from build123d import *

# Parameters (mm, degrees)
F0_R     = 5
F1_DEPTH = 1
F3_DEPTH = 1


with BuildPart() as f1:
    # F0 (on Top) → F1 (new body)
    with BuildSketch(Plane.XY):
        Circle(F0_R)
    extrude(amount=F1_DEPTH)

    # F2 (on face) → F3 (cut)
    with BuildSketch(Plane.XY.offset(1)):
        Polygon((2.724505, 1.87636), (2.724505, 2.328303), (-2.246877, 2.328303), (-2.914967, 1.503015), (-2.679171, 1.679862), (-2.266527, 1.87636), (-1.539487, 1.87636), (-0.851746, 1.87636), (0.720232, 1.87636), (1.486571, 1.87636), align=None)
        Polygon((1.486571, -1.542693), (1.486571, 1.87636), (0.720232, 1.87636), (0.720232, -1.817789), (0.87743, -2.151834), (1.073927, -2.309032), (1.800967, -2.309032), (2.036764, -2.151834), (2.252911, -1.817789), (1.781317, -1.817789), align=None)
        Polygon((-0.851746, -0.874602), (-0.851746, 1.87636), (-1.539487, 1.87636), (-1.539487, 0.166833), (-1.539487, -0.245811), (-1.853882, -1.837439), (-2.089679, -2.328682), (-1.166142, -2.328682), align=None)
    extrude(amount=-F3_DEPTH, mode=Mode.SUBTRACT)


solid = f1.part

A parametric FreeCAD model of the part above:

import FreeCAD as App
import Part
import Sketcher
from FreeCAD import Vector


def add_polygon(sketch, points):
    """Adds a closed chain of lines whose ends are joined by coincident constraints."""
    first, n = sketch.GeometryCount, len(points)
    for a, b in zip(points, points[1:] + points[:1]):
        sketch.addGeometry(Part.LineSegment(App.Vector(*a, 0), App.Vector(*b, 0)), False)
    for i in range(n):
        sketch.addConstraint(Sketcher.Constraint("Coincident", first + i, 2, first + (i + 1) % n, 1))

doc = App.newDocument("Part")
params = doc.addObject("Spreadsheet::Sheet", "Params")
for row, (alias, value) in enumerate([
    ("sketch1_diameter", "10 mm"),
    ("pad1_length", "1 mm"),
    ("pocket1_length", "1 mm"),
], start=1):
    params.set(f"A{row}", alias)
    params.set(f"B{row}", "=" + value)
    params.setAlias(f"B{row}", alias)

body = doc.addObject("PartDesign::Body", "Body")

sketch1 = body.newObject("Sketcher::SketchObject", "Sketch")
sketch1.AttachmentSupport = (doc.getObject("XY_Plane"), [""])
sketch1.MapMode = "FlatFace"
sketch1.addGeometry(Part.Circle(Vector(0, 0, 0), Vector(0, 0, 1), 5), False)
sketch1.addConstraint([
    Sketcher.Constraint("Coincident", 0, 3, -1, 1),
    Sketcher.Constraint("Diameter", 0, 10.0),
])
sketch1.setExpression("Constraints[1]", "Params.sketch1_diameter")
pad1 = body.newObject("PartDesign::Pad", "Pad")
pad1.Profile = sketch1
pad1.setExpression("Length", "Params.pad1_length")

sketch2 = body.newObject("Sketcher::SketchObject", "Sketch001")
sketch2.AttachmentSupport = (doc.getObject("XY_Plane"), [""])
sketch2.MapMode = "FlatFace"
sketch2.AttachmentOffset = App.Placement(Vector(0, 0, 1), App.Rotation())
add_polygon(sketch2, [(2.724505, 1.87636), (2.724505, 2.328303), (-2.246877, 2.328303), (-2.914967, 1.503015), (-2.679171, 1.679862), (-2.266527, 1.87636), (-1.539487, 1.87636), (-1.539487, -0.245811), (-1.853882, -1.837439), (-2.089679, -2.328682), (-1.166142, -2.328682), (-0.851746, -0.874602), (-0.851746, 1.87636), (0.720232, 1.87636), (0.720232, -1.817789), (0.87743, -2.151834), (1.073927, -2.309032), (1.800967, -2.309032), (2.036764, -2.151834), (2.252911, -1.817789), (1.781317, -1.817789), (1.486571, -1.542693), (1.486571, 1.87636)])
sketch2.addConstraint([
    Sketcher.Constraint("Vertical", 0),
    Sketcher.Constraint("Horizontal", 1),
    Sketcher.Constraint("Horizontal", 5),
    Sketcher.Constraint("Vertical", 6),
    Sketcher.Constraint("Horizontal", 9),
    Sketcher.Constraint("Vertical", 11),
    Sketcher.Constraint("Horizontal", 12),
    Sketcher.Constraint("Vertical", 13),
    Sketcher.Constraint("Horizontal", 16),
    Sketcher.Constraint("Horizontal", 19),
    Sketcher.Constraint("Vertical", 21),
    Sketcher.Constraint("Horizontal", 22),
    Sketcher.Constraint("Horizontal", 5, 2, 11, 2),
    Sketcher.Constraint("Horizontal", 14, 2, 17, 2),
    Sketcher.Constraint("Horizontal", 13, 2, 18, 2),
    Sketcher.Constraint("Horizontal", 12, 2, 21, 2),
    Sketcher.Constraint("Equal", 5, 16),
    Sketcher.Constraint("DistanceX", 5, 1, 5, 2, 0.72704),
    Sketcher.Constraint("DistanceX", 12, 1, 12, 2, 1.571978),
    Sketcher.Constraint("DistanceY", 6, 2, 6, 1, 2.122171),
    Sketcher.Constraint("DistanceY", 11, 1, 11, 2, 2.750962),
    Sketcher.Constraint("DistanceY", 13, 2, 13, 1, 3.694149),
    Sketcher.Constraint("DistanceY", 10, 2, -1, 1, 0.874602),
    Sketcher.Constraint("DistanceY", 3, 2, 4, 2, 0.196498),
    Sketcher.Constraint("DistanceY", 7, 2, 3, 2, 3.517301),
    Sketcher.Constraint("DistanceX", 13, 2, 14, 2, 0.157198),
    Sketcher.Constraint("DistanceY", 15, 2, 14, 2, 0.157198),
    Sketcher.Constraint("Distance", 2, 1.061812),
    Sketcher.Constraint("Distance", 4, 0.457041),
    Sketcher.Constraint("Distance", 10, 1.487681),
    Sketcher.Constraint("Distance", 15, 0.251639),
    Sketcher.Constraint("Distance", 20, 0.403179),
    Sketcher.Constraint("DistanceX", 1, 2, 1, 1, 4.971382),
    Sketcher.Constraint("DistanceX", 9, 1, 9, 2, 0.923537),
    Sketcher.Constraint("DistanceX", 19, 2, 19, 1, 0.471594),
    Sketcher.Constraint("DistanceX", 22, 1, 22, 2, 1.237934),
    Sketcher.Constraint("DistanceY", 0, 1, 0, 2, 0.451943),
    Sketcher.Constraint("DistanceY", 21, 1, 21, 2, 3.419053),
    Sketcher.Constraint("DistanceX", 3, 2, -1, 1, 2.679171),
    Sketcher.Constraint("DistanceX", 8, 2, -1, 1, 2.089679),
    Sketcher.Constraint("DistanceX", -1, 1, 12, 2, 0.720232),
    Sketcher.Constraint("DistanceX", -1, 1, 18, 2, 2.252911),
    Sketcher.Constraint("DistanceX", 2, 2, 1, 2, 0.66809),
    Sketcher.Constraint("DistanceX", 3, 2, 7, 2, 0.825289),
    Sketcher.Constraint("DistanceY", 9, 2, 14, 2, 0.176848),
    Sketcher.Constraint("DistanceX", 13, 2, 17, 2, 1.316532),
])
pocket1 = body.newObject("PartDesign::Pocket", "Pocket")
pocket1.Profile = sketch2
pocket1.setExpression("Length", "Params.pocket1_length")

doc.recompute()
